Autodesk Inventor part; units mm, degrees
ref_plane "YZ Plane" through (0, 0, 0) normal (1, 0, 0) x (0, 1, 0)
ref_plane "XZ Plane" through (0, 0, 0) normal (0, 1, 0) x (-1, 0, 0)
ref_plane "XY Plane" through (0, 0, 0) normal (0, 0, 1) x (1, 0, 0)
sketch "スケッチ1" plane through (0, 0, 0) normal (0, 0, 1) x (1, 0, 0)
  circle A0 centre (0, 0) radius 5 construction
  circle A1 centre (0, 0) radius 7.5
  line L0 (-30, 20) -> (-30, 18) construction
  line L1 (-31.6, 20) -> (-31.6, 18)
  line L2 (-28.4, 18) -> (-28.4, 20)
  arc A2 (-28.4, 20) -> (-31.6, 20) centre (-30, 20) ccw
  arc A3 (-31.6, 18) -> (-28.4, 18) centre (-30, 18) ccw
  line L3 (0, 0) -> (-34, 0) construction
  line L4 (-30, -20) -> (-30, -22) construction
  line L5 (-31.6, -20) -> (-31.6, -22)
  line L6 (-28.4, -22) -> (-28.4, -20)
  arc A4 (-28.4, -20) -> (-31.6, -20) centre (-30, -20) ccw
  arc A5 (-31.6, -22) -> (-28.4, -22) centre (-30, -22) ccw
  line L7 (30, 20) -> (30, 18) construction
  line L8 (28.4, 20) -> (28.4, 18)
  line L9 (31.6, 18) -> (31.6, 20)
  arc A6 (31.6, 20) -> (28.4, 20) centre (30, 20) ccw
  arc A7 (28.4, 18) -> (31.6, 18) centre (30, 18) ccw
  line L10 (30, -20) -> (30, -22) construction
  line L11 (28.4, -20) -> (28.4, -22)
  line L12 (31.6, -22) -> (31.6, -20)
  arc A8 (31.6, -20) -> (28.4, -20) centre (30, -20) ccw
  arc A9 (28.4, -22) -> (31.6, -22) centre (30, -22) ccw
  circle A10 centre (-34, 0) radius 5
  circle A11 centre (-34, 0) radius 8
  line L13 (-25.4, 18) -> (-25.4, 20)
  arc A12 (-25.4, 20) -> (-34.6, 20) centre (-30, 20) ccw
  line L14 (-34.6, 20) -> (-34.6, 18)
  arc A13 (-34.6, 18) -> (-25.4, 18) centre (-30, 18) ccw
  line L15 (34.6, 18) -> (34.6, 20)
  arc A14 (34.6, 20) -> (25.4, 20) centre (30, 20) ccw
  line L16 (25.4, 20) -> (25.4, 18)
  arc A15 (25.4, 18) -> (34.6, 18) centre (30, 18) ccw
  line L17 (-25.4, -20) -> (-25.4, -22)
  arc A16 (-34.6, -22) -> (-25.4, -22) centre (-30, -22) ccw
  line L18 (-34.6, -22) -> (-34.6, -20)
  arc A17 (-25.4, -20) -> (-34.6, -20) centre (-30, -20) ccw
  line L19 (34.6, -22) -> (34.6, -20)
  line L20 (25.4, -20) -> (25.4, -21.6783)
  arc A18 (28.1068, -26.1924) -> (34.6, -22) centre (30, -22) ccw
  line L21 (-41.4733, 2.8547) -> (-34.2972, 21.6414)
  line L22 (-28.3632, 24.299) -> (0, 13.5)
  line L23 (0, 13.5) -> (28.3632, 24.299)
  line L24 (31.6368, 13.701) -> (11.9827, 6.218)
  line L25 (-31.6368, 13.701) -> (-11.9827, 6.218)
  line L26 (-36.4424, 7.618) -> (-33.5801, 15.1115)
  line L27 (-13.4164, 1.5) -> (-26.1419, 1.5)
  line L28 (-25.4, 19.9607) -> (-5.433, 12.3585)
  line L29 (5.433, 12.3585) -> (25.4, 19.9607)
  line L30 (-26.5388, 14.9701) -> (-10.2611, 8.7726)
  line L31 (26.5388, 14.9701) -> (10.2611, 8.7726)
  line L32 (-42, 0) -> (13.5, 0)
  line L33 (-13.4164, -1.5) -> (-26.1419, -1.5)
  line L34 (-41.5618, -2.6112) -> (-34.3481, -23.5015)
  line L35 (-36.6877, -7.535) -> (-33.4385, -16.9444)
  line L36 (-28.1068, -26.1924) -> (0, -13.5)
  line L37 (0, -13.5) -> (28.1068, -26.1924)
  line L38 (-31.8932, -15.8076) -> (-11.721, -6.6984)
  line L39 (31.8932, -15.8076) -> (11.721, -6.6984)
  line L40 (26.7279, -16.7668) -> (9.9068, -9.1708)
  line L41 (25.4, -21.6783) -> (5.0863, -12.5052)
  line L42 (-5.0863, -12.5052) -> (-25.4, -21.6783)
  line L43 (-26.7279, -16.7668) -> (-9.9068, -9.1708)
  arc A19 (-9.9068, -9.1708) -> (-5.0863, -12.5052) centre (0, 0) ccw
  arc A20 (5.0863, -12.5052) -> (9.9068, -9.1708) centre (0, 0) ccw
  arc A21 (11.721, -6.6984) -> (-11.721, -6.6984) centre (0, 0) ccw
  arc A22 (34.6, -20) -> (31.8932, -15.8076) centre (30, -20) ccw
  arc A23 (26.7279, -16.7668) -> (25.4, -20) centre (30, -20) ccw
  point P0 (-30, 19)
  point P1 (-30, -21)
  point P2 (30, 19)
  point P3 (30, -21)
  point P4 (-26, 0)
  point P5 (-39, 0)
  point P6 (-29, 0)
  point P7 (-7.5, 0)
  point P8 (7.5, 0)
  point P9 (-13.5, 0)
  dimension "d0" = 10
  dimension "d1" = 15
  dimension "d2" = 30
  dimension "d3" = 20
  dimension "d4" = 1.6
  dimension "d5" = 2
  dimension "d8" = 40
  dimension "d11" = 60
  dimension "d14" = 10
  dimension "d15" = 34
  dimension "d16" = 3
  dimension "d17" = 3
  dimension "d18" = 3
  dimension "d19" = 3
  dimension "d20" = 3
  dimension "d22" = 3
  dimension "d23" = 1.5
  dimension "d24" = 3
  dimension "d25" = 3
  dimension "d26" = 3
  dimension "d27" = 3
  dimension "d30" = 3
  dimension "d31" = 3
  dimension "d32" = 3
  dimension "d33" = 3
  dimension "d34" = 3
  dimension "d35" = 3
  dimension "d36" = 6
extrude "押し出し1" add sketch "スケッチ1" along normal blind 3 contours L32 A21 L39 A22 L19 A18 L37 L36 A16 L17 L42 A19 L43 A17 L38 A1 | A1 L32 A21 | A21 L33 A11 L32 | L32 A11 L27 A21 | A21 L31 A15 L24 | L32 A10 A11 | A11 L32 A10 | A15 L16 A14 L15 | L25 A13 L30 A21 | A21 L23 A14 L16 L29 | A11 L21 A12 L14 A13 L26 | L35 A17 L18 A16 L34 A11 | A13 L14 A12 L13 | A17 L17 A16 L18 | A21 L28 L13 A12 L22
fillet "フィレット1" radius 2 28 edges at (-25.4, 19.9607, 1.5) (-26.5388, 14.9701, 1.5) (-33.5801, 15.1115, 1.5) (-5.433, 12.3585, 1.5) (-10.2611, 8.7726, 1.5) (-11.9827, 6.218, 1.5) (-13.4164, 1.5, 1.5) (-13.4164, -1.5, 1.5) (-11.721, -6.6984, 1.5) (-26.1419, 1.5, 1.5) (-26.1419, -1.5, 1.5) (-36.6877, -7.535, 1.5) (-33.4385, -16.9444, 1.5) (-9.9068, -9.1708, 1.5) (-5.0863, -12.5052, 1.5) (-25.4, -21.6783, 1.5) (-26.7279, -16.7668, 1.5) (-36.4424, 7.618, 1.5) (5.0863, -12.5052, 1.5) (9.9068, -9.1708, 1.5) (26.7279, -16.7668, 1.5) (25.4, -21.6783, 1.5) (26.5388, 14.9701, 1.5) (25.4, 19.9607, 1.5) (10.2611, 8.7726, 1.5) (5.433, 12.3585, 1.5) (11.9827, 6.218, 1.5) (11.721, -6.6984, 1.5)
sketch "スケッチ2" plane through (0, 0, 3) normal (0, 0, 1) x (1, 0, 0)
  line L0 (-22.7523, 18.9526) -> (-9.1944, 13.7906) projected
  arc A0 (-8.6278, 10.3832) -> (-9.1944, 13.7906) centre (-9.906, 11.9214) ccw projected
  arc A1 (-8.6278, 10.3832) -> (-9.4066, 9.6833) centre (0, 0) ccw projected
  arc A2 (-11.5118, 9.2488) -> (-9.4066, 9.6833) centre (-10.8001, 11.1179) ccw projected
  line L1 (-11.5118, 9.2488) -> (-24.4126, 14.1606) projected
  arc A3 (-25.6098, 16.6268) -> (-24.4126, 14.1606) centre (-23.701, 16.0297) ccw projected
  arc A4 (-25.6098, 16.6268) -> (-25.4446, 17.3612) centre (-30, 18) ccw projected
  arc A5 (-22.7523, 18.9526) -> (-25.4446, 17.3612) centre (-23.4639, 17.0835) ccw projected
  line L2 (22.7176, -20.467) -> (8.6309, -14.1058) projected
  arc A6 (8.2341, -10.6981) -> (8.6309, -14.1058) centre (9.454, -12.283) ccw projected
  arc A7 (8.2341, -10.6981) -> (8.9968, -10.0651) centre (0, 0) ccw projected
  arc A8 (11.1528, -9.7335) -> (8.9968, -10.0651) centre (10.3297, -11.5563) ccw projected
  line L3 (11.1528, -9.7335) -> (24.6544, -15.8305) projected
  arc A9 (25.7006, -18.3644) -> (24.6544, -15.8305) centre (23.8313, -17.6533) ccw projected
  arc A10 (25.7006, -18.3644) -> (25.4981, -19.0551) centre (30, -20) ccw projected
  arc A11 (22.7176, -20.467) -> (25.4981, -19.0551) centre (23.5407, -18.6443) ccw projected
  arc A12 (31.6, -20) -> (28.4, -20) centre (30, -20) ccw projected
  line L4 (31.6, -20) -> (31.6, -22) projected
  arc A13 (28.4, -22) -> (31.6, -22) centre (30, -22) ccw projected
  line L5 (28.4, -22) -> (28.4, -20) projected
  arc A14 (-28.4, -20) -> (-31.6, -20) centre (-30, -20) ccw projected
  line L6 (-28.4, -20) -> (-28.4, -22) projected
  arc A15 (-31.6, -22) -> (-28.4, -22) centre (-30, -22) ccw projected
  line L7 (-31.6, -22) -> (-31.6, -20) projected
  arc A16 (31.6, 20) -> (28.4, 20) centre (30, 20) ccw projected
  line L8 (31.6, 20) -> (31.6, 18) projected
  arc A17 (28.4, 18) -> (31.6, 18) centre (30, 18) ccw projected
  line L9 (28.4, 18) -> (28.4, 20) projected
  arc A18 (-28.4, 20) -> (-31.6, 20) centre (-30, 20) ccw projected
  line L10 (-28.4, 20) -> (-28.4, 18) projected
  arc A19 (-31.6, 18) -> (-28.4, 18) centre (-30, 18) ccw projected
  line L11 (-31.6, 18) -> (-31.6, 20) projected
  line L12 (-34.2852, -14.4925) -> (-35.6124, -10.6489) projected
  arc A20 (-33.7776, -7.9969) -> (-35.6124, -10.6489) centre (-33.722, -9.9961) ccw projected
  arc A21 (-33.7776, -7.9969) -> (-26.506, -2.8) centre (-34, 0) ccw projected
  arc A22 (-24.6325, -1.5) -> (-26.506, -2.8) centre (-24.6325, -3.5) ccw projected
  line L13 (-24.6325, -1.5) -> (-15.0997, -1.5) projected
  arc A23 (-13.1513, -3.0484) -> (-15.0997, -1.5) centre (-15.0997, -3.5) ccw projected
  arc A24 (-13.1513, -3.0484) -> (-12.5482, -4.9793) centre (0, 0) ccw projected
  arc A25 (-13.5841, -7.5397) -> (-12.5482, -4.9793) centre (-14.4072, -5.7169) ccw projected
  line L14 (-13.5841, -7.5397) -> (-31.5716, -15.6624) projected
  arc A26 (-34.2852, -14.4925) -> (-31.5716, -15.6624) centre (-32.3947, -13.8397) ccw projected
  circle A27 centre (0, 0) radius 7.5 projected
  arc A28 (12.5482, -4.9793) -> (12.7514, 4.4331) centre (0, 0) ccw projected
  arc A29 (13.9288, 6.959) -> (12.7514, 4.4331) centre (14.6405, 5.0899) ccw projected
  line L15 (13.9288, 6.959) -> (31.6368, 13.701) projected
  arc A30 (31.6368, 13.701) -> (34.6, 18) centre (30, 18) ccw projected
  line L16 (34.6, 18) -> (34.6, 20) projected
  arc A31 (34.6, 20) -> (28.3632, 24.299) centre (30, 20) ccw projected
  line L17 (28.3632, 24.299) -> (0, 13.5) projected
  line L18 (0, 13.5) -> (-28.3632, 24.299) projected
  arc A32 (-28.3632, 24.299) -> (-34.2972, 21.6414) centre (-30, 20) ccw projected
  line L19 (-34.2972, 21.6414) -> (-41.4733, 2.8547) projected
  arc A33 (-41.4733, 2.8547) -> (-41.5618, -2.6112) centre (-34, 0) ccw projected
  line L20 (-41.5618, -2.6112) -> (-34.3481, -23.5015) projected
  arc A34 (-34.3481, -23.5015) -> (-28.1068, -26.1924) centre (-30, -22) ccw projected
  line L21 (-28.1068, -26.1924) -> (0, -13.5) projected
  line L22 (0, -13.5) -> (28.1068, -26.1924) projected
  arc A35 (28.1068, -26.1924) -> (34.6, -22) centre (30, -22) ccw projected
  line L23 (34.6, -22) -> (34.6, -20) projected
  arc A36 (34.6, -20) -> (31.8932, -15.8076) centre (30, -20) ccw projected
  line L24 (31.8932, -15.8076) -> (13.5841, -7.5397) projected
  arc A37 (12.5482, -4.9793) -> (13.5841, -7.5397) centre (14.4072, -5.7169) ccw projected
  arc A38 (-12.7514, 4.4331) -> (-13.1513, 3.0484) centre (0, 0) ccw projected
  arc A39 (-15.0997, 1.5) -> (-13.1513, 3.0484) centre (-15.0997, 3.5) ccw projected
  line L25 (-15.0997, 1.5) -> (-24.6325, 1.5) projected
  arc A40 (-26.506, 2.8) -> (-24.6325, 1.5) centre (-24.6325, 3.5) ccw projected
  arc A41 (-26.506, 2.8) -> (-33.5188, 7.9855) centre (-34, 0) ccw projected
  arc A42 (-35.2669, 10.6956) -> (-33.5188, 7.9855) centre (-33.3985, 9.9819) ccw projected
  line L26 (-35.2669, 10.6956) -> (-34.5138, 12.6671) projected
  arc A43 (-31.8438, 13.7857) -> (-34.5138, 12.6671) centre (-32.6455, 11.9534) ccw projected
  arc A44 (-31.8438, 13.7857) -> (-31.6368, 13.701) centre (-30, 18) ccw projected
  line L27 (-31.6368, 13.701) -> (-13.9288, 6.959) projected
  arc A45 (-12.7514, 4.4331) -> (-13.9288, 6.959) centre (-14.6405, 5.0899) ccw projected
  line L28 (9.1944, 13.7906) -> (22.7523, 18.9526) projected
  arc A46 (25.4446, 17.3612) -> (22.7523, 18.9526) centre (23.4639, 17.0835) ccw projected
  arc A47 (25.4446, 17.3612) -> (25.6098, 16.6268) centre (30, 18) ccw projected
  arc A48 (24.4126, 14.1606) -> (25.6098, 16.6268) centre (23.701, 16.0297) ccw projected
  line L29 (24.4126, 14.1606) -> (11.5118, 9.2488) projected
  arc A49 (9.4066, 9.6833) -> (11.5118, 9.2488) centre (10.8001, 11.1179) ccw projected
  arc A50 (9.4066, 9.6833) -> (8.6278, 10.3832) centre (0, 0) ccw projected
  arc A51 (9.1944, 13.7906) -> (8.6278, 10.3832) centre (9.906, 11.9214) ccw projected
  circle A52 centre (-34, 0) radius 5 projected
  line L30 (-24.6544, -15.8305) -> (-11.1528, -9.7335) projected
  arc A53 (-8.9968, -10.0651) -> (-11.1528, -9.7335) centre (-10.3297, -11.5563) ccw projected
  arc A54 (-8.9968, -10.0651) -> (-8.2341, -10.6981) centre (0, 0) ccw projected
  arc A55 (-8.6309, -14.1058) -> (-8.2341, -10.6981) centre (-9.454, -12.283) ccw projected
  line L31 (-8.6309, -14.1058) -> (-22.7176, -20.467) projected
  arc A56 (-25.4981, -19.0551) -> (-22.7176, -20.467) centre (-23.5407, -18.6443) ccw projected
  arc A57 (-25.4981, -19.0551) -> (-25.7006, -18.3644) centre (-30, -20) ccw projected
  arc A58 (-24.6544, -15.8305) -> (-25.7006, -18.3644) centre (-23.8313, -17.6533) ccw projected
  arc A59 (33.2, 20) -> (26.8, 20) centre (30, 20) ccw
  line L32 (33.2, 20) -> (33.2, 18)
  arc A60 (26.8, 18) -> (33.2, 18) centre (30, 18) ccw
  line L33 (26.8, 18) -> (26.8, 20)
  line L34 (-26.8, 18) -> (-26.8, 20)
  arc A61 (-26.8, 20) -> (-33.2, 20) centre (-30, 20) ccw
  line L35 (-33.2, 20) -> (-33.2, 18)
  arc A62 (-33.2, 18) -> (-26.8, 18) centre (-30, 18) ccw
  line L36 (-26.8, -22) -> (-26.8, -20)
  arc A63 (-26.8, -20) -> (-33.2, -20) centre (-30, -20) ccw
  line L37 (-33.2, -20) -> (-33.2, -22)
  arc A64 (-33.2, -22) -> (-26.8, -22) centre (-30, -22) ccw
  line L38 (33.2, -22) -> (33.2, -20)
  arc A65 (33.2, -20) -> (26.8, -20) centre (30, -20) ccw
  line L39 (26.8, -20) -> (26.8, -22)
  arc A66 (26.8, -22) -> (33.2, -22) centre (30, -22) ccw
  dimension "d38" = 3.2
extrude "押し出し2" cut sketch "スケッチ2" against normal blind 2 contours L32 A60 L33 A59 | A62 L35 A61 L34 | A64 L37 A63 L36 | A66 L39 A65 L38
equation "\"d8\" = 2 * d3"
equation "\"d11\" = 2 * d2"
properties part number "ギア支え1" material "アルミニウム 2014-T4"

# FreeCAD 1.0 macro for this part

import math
import FreeCAD as App
import Part
import Sketcher
Q = App.Units.Quantity


def edges_at(feature, points):
    """Names of the edges that pass closest to the given points."""
    edges = feature.Shape.Edges
    near = lambda p: min(range(len(edges)), key=lambda i: edges[i].distToShape(Part.Vertex(*p))[0])
    return sorted({f"Edge{near(p) + 1}" for p in points})

doc = App.newDocument("Part")
body = doc.addObject("PartDesign::Body", "Body")

sketch1 = body.newObject("Sketcher::SketchObject", "Sketch")
sketch1.AttachmentSupport = (doc.getObject("XY_Plane"), [""])
sketch1.MapMode = "FlatFace"
sketch1.addGeometry([
    Part.ArcOfCircle(Part.Circle(App.Vector(0, 0, 0), App.Vector(0, 0, 1), 13.500015), math.radians(-29.747408), math.radians(27.425465)),
    Part.LineSegment(App.Vector(11.9827, 6.218, 0), App.Vector(31.6368, 13.701, 0)),
    Part.ArcOfCircle(Part.Circle(App.Vector(30, 18, 0), App.Vector(0, 0, 1), 4.6), math.radians(-69.156184), math.radians(0)),
    Part.LineSegment(App.Vector(34.6, 18, 0), App.Vector(34.6, 20, 0)),
    Part.ArcOfCircle(Part.Circle(App.Vector(30, 20, 0), App.Vector(0, 0, 1), 4.6), math.radians(0), math.radians(110.843816)),
    Part.LineSegment(App.Vector(28.3632, 24.299, 0), App.Vector(0, 13.5, 0)),
    Part.LineSegment(App.Vector(0, 13.5, 0), App.Vector(-28.3632, 24.299, 0)),
    Part.ArcOfCircle(Part.Circle(App.Vector(-30, 20, 0), App.Vector(0, 0, 1), 4.6), math.radians(69.156184), math.radians(159.09466)),
    Part.LineSegment(App.Vector(-34.2972, 21.6414, 0), App.Vector(-41.4733, 2.8547, 0)),
    Part.ArcOfCircle(Part.Circle(App.Vector(-34, 0, 0), App.Vector(0, 0, 1), 8), math.radians(159.093816), math.radians(199.050541)),
    Part.LineSegment(App.Vector(-41.5618, -2.6112, 0), App.Vector(-34.3481, -23.5015, 0)),
    Part.ArcOfCircle(Part.Circle(App.Vector(-30, -22, 0), App.Vector(0, 0, 1), 4.6), math.radians(-160.949017), math.radians(-65.697062)),
    Part.LineSegment(App.Vector(-28.1068, -26.1924, 0), App.Vector(0, -13.5, 0)),
    Part.LineSegment(App.Vector(0, -13.5, 0), App.Vector(28.1068, -26.1924, 0)),
    Part.ArcOfCircle(Part.Circle(App.Vector(30, -22, 0), App.Vector(0, 0, 1), 4.600046), math.radians(-114.302938), math.radians(0)),
    Part.LineSegment(App.Vector(34.6, -22, 0), App.Vector(34.6, -20, 0)),
    Part.ArcOfCircle(Part.Circle(App.Vector(30, -20, 0), App.Vector(0, 0, 1), 4.600024), math.radians(0), math.radians(65.697062)),
    Part.LineSegment(App.Vector(31.8932, -15.8076, 0), App.Vector(11.721, -6.6984, 0)),
    Part.LineSegment(App.Vector(-5.0863, -12.5052, 0), App.Vector(-25.4, -21.6783, 0)),
    Part.LineSegment(App.Vector(-25.4, -21.6783, 0), App.Vector(-25.4, -20, 0)),
    Part.ArcOfCircle(Part.Circle(App.Vector(-30, -20, 0), App.Vector(0, 0, 1), 4.6), math.radians(0), math.radians(44.65739)),
    Part.LineSegment(App.Vector(-26.7279, -16.7668, 0), App.Vector(-9.9068, -9.1708, 0)),
    Part.ArcOfCircle(Part.Circle(App.Vector(0.001134, 0.001308, 0), App.Vector(0, 0, 1), 13.501656), math.radians(-137.208532), math.radians(-112.135655)),
    Part.LineSegment(App.Vector(-11.721, -6.6984, 0), App.Vector(-31.8932, -15.8076, 0)),
    Part.ArcOfCircle(Part.Circle(App.Vector(-30, -20, 0), App.Vector(0, 0, 1), 4.6), math.radians(114.302938), math.radians(138.374322)),
    Part.LineSegment(App.Vector(-33.4385, -16.9444, 0), App.Vector(-36.6877, -7.535, 0)),
    Part.ArcOfCircle(Part.Circle(App.Vector(-34, 0, 0), App.Vector(0, 0, 1), 8), math.radians(-109.631085), math.radians(-10.806945)),
    Part.LineSegment(App.Vector(-26.1419, -1.5, 0), App.Vector(-13.4164, -1.5, 0)),
    Part.ArcOfCircle(Part.Circle(App.Vector(0, 0, 0), App.Vector(0, 0, 1), 13.500015), math.radians(-173.620626), math.radians(-150.252592)),
    Part.Circle(App.Vector(0, 0, 0), App.Vector(0, 0, 1), 7.5),
    Part.LineSegment(App.Vector(28.4, -22, 0), App.Vector(28.4, -20, 0)),
    Part.ArcOfCircle(Part.Circle(App.Vector(30, -20, 0), App.Vector(0, 0, 1), 1.6), math.radians(0), math.radians(180)),
    Part.LineSegment(App.Vector(31.6, -20, 0), App.Vector(31.6, -22, 0)),
    Part.ArcOfCircle(Part.Circle(App.Vector(30, -22, 0), App.Vector(0, 0, 1), 1.6), math.radians(180), math.radians(360)),
    Part.ArcOfCircle(Part.Circle(App.Vector(30, -20, 0), App.Vector(0, 0, 1), 4.6), math.radians(135.34261), math.radians(180)),
    Part.LineSegment(App.Vector(25.4, -20, 0), App.Vector(25.4, -21.6783, 0)),
    Part.LineSegment(App.Vector(25.4, -21.6783, 0), App.Vector(5.0863, -12.5052, 0)),
    Part.ArcOfCircle(Part.Circle(App.Vector(0.000823, -0.001522, 0), App.Vector(0, 0, 1), 13.498297), math.radians(-67.867516), math.radians(-42.788298)),
    Part.LineSegment(App.Vector(9.9068, -9.1708, 0), App.Vector(26.7279, -16.7668, 0)),
    Part.ArcOfCircle(Part.Circle(App.Vector(0, 0, 0), App.Vector(0, 0, 1), 13.500015), math.radians(152.574535), math.radians(173.620626)),
    Part.LineSegment(App.Vector(-13.4164, 1.5, 0), App.Vector(-26.1419, 1.5, 0)),
    Part.ArcOfCircle(Part.Circle(App.Vector(-34, 0, 0), App.Vector(0, 0, 1), 8), math.radians(10.806945), math.radians(107.776322)),
    Part.LineSegment(App.Vector(-36.4424, 7.618, 0), App.Vector(-33.5801, 15.1115, 0)),
    Part.ArcOfCircle(Part.Circle(App.Vector(-30, 18, 0), App.Vector(0, 0, 1), 4.6), math.radians(-141.102681), math.radians(-110.843816)),
    Part.LineSegment(App.Vector(-31.6368, 13.701, 0), App.Vector(-11.9827, 6.218, 0)),
    Part.ArcOfCircle(Part.Circle(App.Vector(0, 0, 0), App.Vector(0, 0, 1), 13.500015), math.radians(113.731081), math.radians(139.471624)),
    Part.LineSegment(App.Vector(-10.2611, 8.7726, 0), App.Vector(-26.5388, 14.9701, 0)),
    Part.ArcOfCircle(Part.Circle(App.Vector(-30, 18, 0), App.Vector(0, 0, 1), 4.6), math.radians(-41.19858), math.radians(0)),
    Part.LineSegment(App.Vector(-25.4, 18, 0), App.Vector(-25.4, 19.9607, 0)),
    Part.LineSegment(App.Vector(-25.4, 19.9607, 0), App.Vector(-5.433, 12.3585, 0)),
    Part.ArcOfCircle(Part.Circle(App.Vector(0, 0, 0), App.Vector(0, 0, 1), 13.500015), math.radians(40.528376), math.radians(66.268919)),
    Part.LineSegment(App.Vector(5.433, 12.3585, 0), App.Vector(25.4, 19.9607, 0)),
    Part.LineSegment(App.Vector(25.4, 19.9607, 0), App.Vector(25.4, 18, 0)),
    Part.ArcOfCircle(Part.Circle(App.Vector(30, 18, 0), App.Vector(0, 0, 1), 4.6), math.radians(180), math.radians(221.19858)),
    Part.LineSegment(App.Vector(26.5388, 14.9701, 0), App.Vector(10.2611, 8.7726, 0)),
    Part.ArcOfCircle(Part.Circle(App.Vector(-30, -22, 0), App.Vector(0, 0, 1), 1.6), math.radians(180), math.radians(360)),
    Part.LineSegment(App.Vector(-31.6, -22, 0), App.Vector(-31.6, -20, 0)),
    Part.ArcOfCircle(Part.Circle(App.Vector(-30, -20, 0), App.Vector(0, 0, 1), 1.6), math.radians(0), math.radians(180)),
    Part.LineSegment(App.Vector(-28.4, -20, 0), App.Vector(-28.4, -22, 0)),
    Part.Circle(App.Vector(-34, 0, 0), App.Vector(0, 0, 1), 5),
    Part.ArcOfCircle(Part.Circle(App.Vector(-30, 18, 0), App.Vector(0, 0, 1), 1.6), math.radians(180), math.radians(360)),
    Part.LineSegment(App.Vector(-31.6, 18, 0), App.Vector(-31.6, 20, 0)),
    Part.ArcOfCircle(Part.Circle(App.Vector(-30, 20, 0), App.Vector(0, 0, 1), 1.6), math.radians(0), math.radians(180)),
    Part.LineSegment(App.Vector(-28.4, 20, 0), App.Vector(-28.4, 18, 0)),
    Part.ArcOfCircle(Part.Circle(App.Vector(30, 18, 0), App.Vector(0, 0, 1), 1.6), math.radians(180), math.radians(360)),
    Part.LineSegment(App.Vector(28.4, 18, 0), App.Vector(28.4, 20, 0)),
    Part.ArcOfCircle(Part.Circle(App.Vector(30, 20, 0), App.Vector(0, 0, 1), 1.6), math.radians(0), math.radians(180)),
    Part.LineSegment(App.Vector(31.6, 20, 0), App.Vector(31.6, 18, 0)),
], False)
sketch1.addConstraint([
    Sketcher.Constraint("Coincident", 0, 2, 1, 1),
    Sketcher.Constraint("Tangent", 1, 2, 2, 1),
    Sketcher.Constraint("Tangent", 2, 2, 3, 1),
    Sketcher.Constraint("Tangent", 3, 2, 4, 1),
    Sketcher.Constraint("Tangent", 4, 2, 5, 1),
    Sketcher.Constraint("Coincident", 5, 2, 6, 1),
    Sketcher.Constraint("Tangent", 6, 2, 7, 1),
    Sketcher.Constraint("Tangent", 7, 2, 8, 1),
    Sketcher.Constraint("Tangent", 8, 2, 9, 1),
    Sketcher.Constraint("Tangent", 9, 2, 10, 1),
    Sketcher.Constraint("Tangent", 10, 2, 11, 1),
    Sketcher.Constraint("Tangent", 11, 2, 12, 1),
    Sketcher.Constraint("Coincident", 12, 2, 13, 1),
    Sketcher.Constraint("Tangent", 13, 2, 14, 1),
    Sketcher.Constraint("Tangent", 14, 2, 15, 1),
    Sketcher.Constraint("Tangent", 15, 2, 16, 1),
    Sketcher.Constraint("Tangent", 16, 2, 17, 1),
    Sketcher.Constraint("Coincident", 17, 2, 0, 1),
    Sketcher.Constraint("Coincident", 18, 2, 19, 1),
    Sketcher.Constraint("Tangent", 19, 2, 20, 1),
    Sketcher.Constraint("Coincident", 20, 2, 21, 1),
    Sketcher.Constraint("Coincident", 21, 2, 22, 1),
    Sketcher.Constraint("Coincident", 22, 2, 18, 1),
    Sketcher.Constraint("Tangent", 23, 2, 24, 1),
    Sketcher.Constraint("Coincident", 24, 2, 25, 1),
    Sketcher.Constraint("Coincident", 25, 2, 26, 1),
    Sketcher.Constraint("Coincident", 26, 2, 27, 1),
    Sketcher.Constraint("Coincident", 27, 2, 28, 1),
    Sketcher.Constraint("Coincident", 28, 2, 23, 1),
    Sketcher.Constraint("Tangent", 30, 2, 31, 2),
    Sketcher.Constraint("Tangent", 31, 1, 32, 1),
    Sketcher.Constraint("Tangent", 32, 2, 33, 2),
    Sketcher.Constraint("Tangent", 33, 1, 30, 1),
    Sketcher.Constraint("Tangent", 34, 2, 35, 1),
    Sketcher.Constraint("Coincident", 35, 2, 36, 1),
    Sketcher.Constraint("Coincident", 36, 2, 37, 1),
    Sketcher.Constraint("Coincident", 37, 2, 38, 1),
    Sketcher.Constraint("Coincident", 38, 2, 34, 1),
    Sketcher.Constraint("Coincident", 39, 2, 40, 1),
    Sketcher.Constraint("Coincident", 40, 2, 41, 1),
    Sketcher.Constraint("Coincident", 41, 2, 42, 1),
    Sketcher.Constraint("Coincident", 42, 2, 43, 1),
    Sketcher.Constraint("Tangent", 43, 2, 44, 1),
    Sketcher.Constraint("Coincident", 44, 2, 39, 1),
    Sketcher.Constraint("Coincident", 45, 2, 46, 1),
    Sketcher.Constraint("Coincident", 46, 2, 47, 1),
    Sketcher.Constraint("Tangent", 47, 2, 48, 1),
    Sketcher.Constraint("Coincident", 48, 2, 49, 1),
    Sketcher.Constraint("Coincident", 49, 2, 45, 1),
    Sketcher.Constraint("Coincident", 50, 2, 51, 1),
    Sketcher.Constraint("Coincident", 51, 2, 52, 1),
    Sketcher.Constraint("Tangent", 52, 2, 53, 1),
    Sketcher.Constraint("Coincident", 53, 2, 54, 1),
    Sketcher.Constraint("Coincident", 54, 2, 50, 1),
    Sketcher.Constraint("Tangent", 55, 1, 56, 1),
    Sketcher.Constraint("Tangent", 56, 2, 57, 2),
    Sketcher.Constraint("Tangent", 57, 1, 58, 1),
    Sketcher.Constraint("Tangent", 58, 2, 55, 2),
    Sketcher.Constraint("Tangent", 60, 1, 61, 1),
    Sketcher.Constraint("Tangent", 61, 2, 62, 2),
    Sketcher.Constraint("Tangent", 62, 1, 63, 1),
    Sketcher.Constraint("Tangent", 63, 2, 60, 2),
    Sketcher.Constraint("Tangent", 64, 1, 65, 1),
    Sketcher.Constraint("Tangent", 65, 2, 66, 2),
    Sketcher.Constraint("Tangent", 66, 1, 67, 1),
    Sketcher.Constraint("Tangent", 67, 2, 64, 2),
    Sketcher.Constraint("Vertical", 3),
    Sketcher.Constraint("Vertical", 15),
    Sketcher.Constraint("Vertical", 19),
    Sketcher.Constraint("Horizontal", 27),
    Sketcher.Constraint("Vertical", 30),
    Sketcher.Constraint("Vertical", 32),
    Sketcher.Constraint("Vertical", 35),
    Sketcher.Constraint("Horizontal", 40),
    Sketcher.Constraint("Vertical", 48),
    Sketcher.Constraint("Vertical", 52),
    Sketcher.Constraint("Vertical", 56),
    Sketcher.Constraint("Vertical", 58),
    Sketcher.Constraint("Vertical", 61),
    Sketcher.Constraint("Vertical", 63),
    Sketcher.Constraint("Vertical", 65),
    Sketcher.Constraint("Vertical", 67),
    Sketcher.Constraint("Coincident", 0, 3, -1, 1),
    Sketcher.Constraint("Coincident", 28, 3, -1, 1),
    Sketcher.Constraint("Coincident", 29, 3, -1, 1),
    Sketcher.Constraint("Coincident", 39, 3, -1, 1),
    Sketcher.Constraint("Coincident", 45, 3, -1, 1),
    Sketcher.Constraint("Coincident", 50, 3, -1, 1),
    Sketcher.Constraint("Coincident", 24, 3, 20, 3),
    Sketcher.Constraint("Coincident", 26, 3, 9, 3),
    Sketcher.Constraint("Coincident", 31, 3, 16, 3),
    Sketcher.Constraint("Coincident", 33, 3, 14, 3),
    Sketcher.Constraint("Coincident", 34, 3, 16, 3),
    Sketcher.Constraint("Coincident", 41, 3, 9, 3),
    Sketcher.Constraint("Coincident", 47, 3, 43, 3),
    Sketcher.Constraint("Coincident", 53, 3, 2, 3),
    Sketcher.Constraint("Coincident", 55, 3, 11, 3),
    Sketcher.Constraint("Coincident", 57, 3, 20, 3),
    Sketcher.Constraint("Coincident", 59, 3, 9, 3),
    Sketcher.Constraint("Coincident", 60, 3, 43, 3),
    Sketcher.Constraint("Coincident", 62, 3, 7, 3),
    Sketcher.Constraint("Coincident", 64, 3, 2, 3),
    Sketcher.Constraint("Coincident", 66, 3, 4, 3),
    Sketcher.Constraint("Equal", 4, 7),
    Sketcher.Constraint("Equal", 7, 11),
    Sketcher.Constraint("Equal", 11, 14),
    Sketcher.Constraint("Equal", 16, 20),
    Sketcher.Constraint("Equal", 20, 24),
    Sketcher.Constraint("Equal", 9, 26),
    Sketcher.Constraint("Equal", 0, 28),
    Sketcher.Constraint("Equal", 24, 34),
    Sketcher.Constraint("Equal", 28, 39),
    Sketcher.Constraint("Equal", 26, 41),
    Sketcher.Constraint("Equal", 34, 43),
    Sketcher.Constraint("Equal", 39, 45),
    Sketcher.Constraint("Equal", 43, 47),
    Sketcher.Constraint("Equal", 45, 50),
    Sketcher.Constraint("Equal", 47, 53),
    Sketcher.Constraint("Equal", 33, 55),
    Sketcher.Constraint("Equal", 57, 60),
    Sketcher.Constraint("Equal", 62, 64),
    Sketcher.Constraint("Symmetric", 7, 3, 16, 3, -1, 1),
    Sketcher.Constraint("Symmetric", 4, 3, 20, 3, -1, 1),
    Sketcher.Constraint("Symmetric", 5, 2, 12, 2, -1, 1),
    Sketcher.Constraint("Symmetric", 4, 3, 7, 3, -2),
    Sketcher.Constraint("Symmetric", 11, 2, 13, 2, -2),
    Sketcher.Constraint("Symmetric", 22, 2, 36, 2, -2),
    Sketcher.Constraint("Symmetric", 21, 2, 37, 2, -2),
    Sketcher.Constraint("Symmetric", 1, 2, 43, 2, -2),
    Sketcher.Constraint("Symmetric", 22, 3, 37, 3, -1),
    Sketcher.Constraint("Symmetric", 26, 2, 40, 2, -1),
    Sketcher.Constraint("Parallel", 1, 5),
    Sketcher.Constraint("Parallel", 13, 17),
    Sketcher.Constraint("Parallel", 12, 18),
    Sketcher.Constraint("Parallel", 18, 21),
    Sketcher.Constraint("Parallel", 21, 23),
    Sketcher.Constraint("Parallel", 10, 25),
    Sketcher.Constraint("Parallel", 17, 36),
    Sketcher.Constraint("Parallel", 36, 38),
    Sketcher.Constraint("Parallel", 8, 42),
    Sketcher.Constraint("Parallel", 44, 46),
    Sketcher.Constraint("Parallel", 46, 49),
    Sketcher.Constraint("Parallel", 5, 51),
    Sketcher.Constraint("Parallel", 51, 54),
    Sketcher.Constraint("Horizontal", 49, 2, 50, 2),
    Sketcher.Constraint("Horizontal", 46, 2, 53, 2),
    Sketcher.Constraint("Equal", 3, 15),
    Sketcher.Constraint("Diameter", 29, Q("15 mm")),
    Sketcher.Constraint("Diameter", 59, Q("10 mm")),
    Sketcher.Constraint("Radius", 31, Q("1.6 mm")),
    Sketcher.Constraint("DistanceY", 3, 1, 3, 2, Q("2 mm")),
    Sketcher.Constraint("DistanceX", -1, 1, 2, 3, Q("30 mm")),
    Sketcher.Constraint("DistanceY", -1, 1, 4, 3, Q("20 mm")),
    Sketcher.Constraint("DistanceX", 9, 3, -1, 1, Q("34 mm")),
    Sketcher.Constraint("Radius", 9, Q("8 mm")),
    Sketcher.Constraint("DistanceY", 26, 2, -1, 1, Q("1.5 mm")),
    Sketcher.Constraint("Radius", 0, Q("13.5 mm")),
    Sketcher.Constraint("Radius", 2, Q("4.6 mm")),
    Sketcher.Constraint("DistanceY", -1, 1, 5, 2, Q("13.5 mm")),
    Sketcher.Constraint("Radius", 22, Q("13.5017 mm")),
    Sketcher.Constraint("Radius", 37, Q("13.4983 mm")),
    Sketcher.Constraint("DistanceX", 42, 2, -1, 1, Q("33.58 mm")),
    Sketcher.Constraint("DistanceY", -1, 1, 46, 2, Q("14.97 mm")),
    Sketcher.Constraint("DistanceY", 19, 1, 19, 2, Q("1.6783 mm")),
    Sketcher.Constraint("DistanceY", 48, 1, 48, 2, Q("1.9607 mm")),
    Sketcher.Constraint("DistanceX", 20, 2, -1, 1, Q("26.728 mm")),
    Sketcher.Constraint("DistanceY", 25, 2, -1, 1, Q("7.535 mm")),
])
pad1 = body.newObject("PartDesign::Pad", "Pad")
pad1.Profile = sketch1
pad1.Length = 3
doc.recompute()

fillet = body.newObject("PartDesign::Fillet", "Fillet")
fillet.Base = (pad1, edges_at(pad1, [
    (-25.4, 19.961, 1.5),
    (-26.539, 14.97, 1.5),
    (-33.58, 15.111, 1.5),
    (-5.433, 12.358, 1.5),
    (-10.261, 8.773, 1.5),
    (-11.983, 6.218, 1.5),
    (-13.416, 1.5, 1.5),
    (-13.416, -1.5, 1.5),
    (-11.721, -6.698, 1.5),
    (-26.142, 1.5, 1.5),
    (-26.142, -1.5, 1.5),
    (-36.688, -7.535, 1.5),
    (-33.438, -16.944, 1.5),
    (-9.907, -9.171, 1.5),
    (-5.086, -12.505, 1.5),
    (-25.4, -21.678, 1.5),
    (-26.728, -16.767, 1.5),
    (-36.442, 7.618, 1.5),
    (5.086, -12.505, 1.5),
    (9.907, -9.171, 1.5),
    (26.728, -16.767, 1.5),
    (25.4, -21.678, 1.5),
    (26.539, 14.97, 1.5),
    (25.4, 19.961, 1.5),
    (10.261, 8.773, 1.5),
    (5.433, 12.358, 1.5),
    (11.983, 6.218, 1.5),
    (11.721, -6.698, 1.5),
]))
fillet.Radius = 2

sketch2 = body.newObject("Sketcher::SketchObject", "Sketch001")
sketch2.AttachmentSupport = (doc.getObject("XY_Plane"), [""])
sketch2.MapMode = "FlatFace"
sketch2.AttachmentOffset = App.Placement(App.Vector(0, 0, 3), App.Rotation())
sketch2.addGeometry([
    Part.LineSegment(App.Vector(33.2, 18, 0), App.Vector(33.2, 20, 0)),
    Part.ArcOfCircle(Part.Circle(App.Vector(30, 20, 0), App.Vector(0, 0, 1), 3.2), math.radians(0), math.radians(180)),
    Part.LineSegment(App.Vector(26.8, 20, 0), App.Vector(26.8, 18, 0)),
    Part.ArcOfCircle(Part.Circle(App.Vector(30, 18, 0), App.Vector(0, 0, 1), 3.2), math.radians(180), math.radians(360)),
    Part.ArcOfCircle(Part.Circle(App.Vector(30, 20, 0), App.Vector(0, 0, 1), 1.6), math.radians(0), math.radians(180)),
    Part.LineSegment(App.Vector(31.6, 20, 0), App.Vector(31.6, 18, 0)),
    Part.ArcOfCircle(Part.Circle(App.Vector(30, 18, 0), App.Vector(0, 0, 1), 1.6), math.radians(180), math.radians(360)),
    Part.LineSegment(App.Vector(28.4, 18, 0), App.Vector(28.4, 20, 0)),
    Part.ArcOfCircle(Part.Circle(App.Vector(-30, 18, 0), App.Vector(0, 0, 1), 3.2), math.radians(180), math.radians(360)),
    Part.LineSegment(App.Vector(-26.8, 18, 0), App.Vector(-26.8, 20, 0)),
    Part.ArcOfCircle(Part.Circle(App.Vector(-30, 20, 0), App.Vector(0, 0, 1), 3.2), math.radians(0), math.radians(180)),
    Part.LineSegment(App.Vector(-33.2, 20, 0), App.Vector(-33.2, 18, 0)),
    Part.ArcOfCircle(Part.Circle(App.Vector(-30, 20, 0), App.Vector(0, 0, 1), 1.6), math.radians(0), math.radians(180)),
    Part.LineSegment(App.Vector(-28.4, 20, 0), App.Vector(-28.4, 18, 0)),
    Part.ArcOfCircle(Part.Circle(App.Vector(-30, 18, 0), App.Vector(0, 0, 1), 1.6), math.radians(180), math.radians(360)),
    Part.LineSegment(App.Vector(-31.6, 18, 0), App.Vector(-31.6, 20, 0)),
    Part.ArcOfCircle(Part.Circle(App.Vector(-30, -22, 0), App.Vector(0, 0, 1), 3.2), math.radians(180), math.radians(360)),
    Part.LineSegment(App.Vector(-26.8, -22, 0), App.Vector(-26.8, -20, 0)),
    Part.ArcOfCircle(Part.Circle(App.Vector(-30, -20, 0), App.Vector(0, 0, 1), 3.2), math.radians(0), math.radians(180)),
    Part.LineSegment(App.Vector(-33.2, -20, 0), App.Vector(-33.2, -22, 0)),
    Part.ArcOfCircle(Part.Circle(App.Vector(-30, -20, 0), App.Vector(0, 0, 1), 1.6), math.radians(0), math.radians(180)),
    Part.LineSegment(App.Vector(-28.4, -20, 0), App.Vector(-28.4, -22, 0)),
    Part.ArcOfCircle(Part.Circle(App.Vector(-30, -22, 0), App.Vector(0, 0, 1), 1.6), math.radians(180), math.radians(360)),
    Part.LineSegment(App.Vector(-31.6, -22, 0), App.Vector(-31.6, -20, 0)),
    Part.ArcOfCircle(Part.Circle(App.Vector(30, -22, 0), App.Vector(0, 0, 1), 3.2), math.radians(180), math.radians(360)),
    Part.LineSegment(App.Vector(33.2, -22, 0), App.Vector(33.2, -20, 0)),
    Part.ArcOfCircle(Part.Circle(App.Vector(30, -20, 0), App.Vector(0, 0, 1), 3.2), math.radians(0), math.radians(180)),
    Part.LineSegment(App.Vector(26.8, -20, 0), App.Vector(26.8, -22, 0)),
    Part.ArcOfCircle(Part.Circle(App.Vector(30, -20, 0), App.Vector(0, 0, 1), 1.6), math.radians(0), math.radians(180)),
    Part.LineSegment(App.Vector(31.6, -20, 0), App.Vector(31.6, -22, 0)),
    Part.ArcOfCircle(Part.Circle(App.Vector(30, -22, 0), App.Vector(0, 0, 1), 1.6), math.radians(180), math.radians(360)),
    Part.LineSegment(App.Vector(28.4, -22, 0), App.Vector(28.4, -20, 0)),
], False)
sketch2.addConstraint([
    Sketcher.Constraint("Tangent", 0, 2, 1, 1),
    Sketcher.Constraint("Tangent", 1, 2, 2, 1),
    Sketcher.Constraint("Tangent", 2, 2, 3, 1),
    Sketcher.Constraint("Tangent", 3, 2, 0, 1),
    Sketcher.Constraint("Tangent", 4, 1, 5, 1),
    Sketcher.Constraint("Tangent", 5, 2, 6, 2),
    Sketcher.Constraint("Tangent", 6, 1, 7, 1),
    Sketcher.Constraint("Tangent", 7, 2, 4, 2),
    Sketcher.Constraint("Tangent", 8, 2, 9, 1),
    Sketcher.Constraint("Tangent", 9, 2, 10, 1),
    Sketcher.Constraint("Tangent", 10, 2, 11, 1),
    Sketcher.Constraint("Tangent", 11, 2, 8, 1),
    Sketcher.Constraint("Tangent", 12, 1, 13, 1),
    Sketcher.Constraint("Tangent", 13, 2, 14, 2),
    Sketcher.Constraint("Tangent", 14, 1, 15, 1),
    Sketcher.Constraint("Tangent", 15, 2, 12, 2),
    Sketcher.Constraint("Tangent", 16, 2, 17, 1),
    Sketcher.Constraint("Tangent", 17, 2, 18, 1),
    Sketcher.Constraint("Tangent", 18, 2, 19, 1),
    Sketcher.Constraint("Tangent", 19, 2, 16, 1),
    Sketcher.Constraint("Tangent", 20, 1, 21, 1),
    Sketcher.Constraint("Tangent", 21, 2, 22, 2),
    Sketcher.Constraint("Tangent", 22, 1, 23, 1),
    Sketcher.Constraint("Tangent", 23, 2, 20, 2),
    Sketcher.Constraint("Tangent", 24, 2, 25, 1),
    Sketcher.Constraint("Tangent", 25, 2, 26, 1),
    Sketcher.Constraint("Tangent", 26, 2, 27, 1),
    Sketcher.Constraint("Tangent", 27, 2, 24, 1),
    Sketcher.Constraint("Tangent", 28, 1, 29, 1),
    Sketcher.Constraint("Tangent", 29, 2, 30, 2),
    Sketcher.Constraint("Tangent", 30, 1, 31, 1),
    Sketcher.Constraint("Tangent", 31, 2, 28, 2),
    Sketcher.Constraint("Vertical", 0),
    Sketcher.Constraint("Vertical", 2),
    Sketcher.Constraint("Vertical", 5),
    Sketcher.Constraint("Vertical", 7),
    Sketcher.Constraint("Vertical", 9),
    Sketcher.Constraint("Vertical", 11),
    Sketcher.Constraint("Vertical", 13),
    Sketcher.Constraint("Vertical", 15),
    Sketcher.Constraint("Vertical", 17),
    Sketcher.Constraint("Vertical", 19),
    Sketcher.Constraint("Vertical", 21),
    Sketcher.Constraint("Vertical", 23),
    Sketcher.Constraint("Vertical", 25),
    Sketcher.Constraint("Vertical", 27),
    Sketcher.Constraint("Vertical", 29),
    Sketcher.Constraint("Vertical", 31),
    Sketcher.Constraint("Coincident", 4, 3, 1, 3),
    Sketcher.Constraint("Coincident", 12, 3, 10, 3),
    Sketcher.Constraint("Coincident", 20, 3, 18, 3),
    Sketcher.Constraint("Coincident", 28, 3, 26, 3),
    Sketcher.Constraint("Equal", 3, 8),
    Sketcher.Constraint("Equal", 6, 12),
    Sketcher.Constraint("Equal", 10, 16),
    Sketcher.Constraint("Equal", 14, 20),
    Sketcher.Constraint("Equal", 18, 24),
    Sketcher.Constraint("Equal", 22, 28),
    Sketcher.Constraint("Symmetric", 1, 3, 18, 3, -1, 1),
    Sketcher.Constraint("Symmetric", 10, 3, 26, 3, -1, 1),
    Sketcher.Constraint("Symmetric", 3, 3, 8, 3, -2),
    Sketcher.Constraint("Horizontal", 6, 3, 8, 3),
    Sketcher.Constraint("Horizontal", 4, 3, 10, 3),
    Sketcher.Constraint("Horizontal", 6, 3, 14, 3),
    Sketcher.Constraint("Horizontal", 22, 3, 24, 3),
    Sketcher.Constraint("Horizontal", 22, 3, 30, 3),
    Sketcher.Constraint("Horizontal", 30, 3, 16, 2),
    Sketcher.Constraint("Equal", 15, 17),
    Sketcher.Constraint("Radius", 1, Q("3.2 mm")),
    Sketcher.Constraint("Radius", 4, Q("1.6 mm")),
    Sketcher.Constraint("DistanceY", 0, 1, 0, 2, Q("2 mm")),
    Sketcher.Constraint("DistanceX", -1, 1, 1, 3, Q("30 mm")),
    Sketcher.Constraint("DistanceY", -1, 1, 1, 3, Q("20 mm")),
])
pocket1 = body.newObject("PartDesign::Pocket", "Pocket")
pocket1.Profile = sketch2
pocket1.Length = 2

doc.recompute()
